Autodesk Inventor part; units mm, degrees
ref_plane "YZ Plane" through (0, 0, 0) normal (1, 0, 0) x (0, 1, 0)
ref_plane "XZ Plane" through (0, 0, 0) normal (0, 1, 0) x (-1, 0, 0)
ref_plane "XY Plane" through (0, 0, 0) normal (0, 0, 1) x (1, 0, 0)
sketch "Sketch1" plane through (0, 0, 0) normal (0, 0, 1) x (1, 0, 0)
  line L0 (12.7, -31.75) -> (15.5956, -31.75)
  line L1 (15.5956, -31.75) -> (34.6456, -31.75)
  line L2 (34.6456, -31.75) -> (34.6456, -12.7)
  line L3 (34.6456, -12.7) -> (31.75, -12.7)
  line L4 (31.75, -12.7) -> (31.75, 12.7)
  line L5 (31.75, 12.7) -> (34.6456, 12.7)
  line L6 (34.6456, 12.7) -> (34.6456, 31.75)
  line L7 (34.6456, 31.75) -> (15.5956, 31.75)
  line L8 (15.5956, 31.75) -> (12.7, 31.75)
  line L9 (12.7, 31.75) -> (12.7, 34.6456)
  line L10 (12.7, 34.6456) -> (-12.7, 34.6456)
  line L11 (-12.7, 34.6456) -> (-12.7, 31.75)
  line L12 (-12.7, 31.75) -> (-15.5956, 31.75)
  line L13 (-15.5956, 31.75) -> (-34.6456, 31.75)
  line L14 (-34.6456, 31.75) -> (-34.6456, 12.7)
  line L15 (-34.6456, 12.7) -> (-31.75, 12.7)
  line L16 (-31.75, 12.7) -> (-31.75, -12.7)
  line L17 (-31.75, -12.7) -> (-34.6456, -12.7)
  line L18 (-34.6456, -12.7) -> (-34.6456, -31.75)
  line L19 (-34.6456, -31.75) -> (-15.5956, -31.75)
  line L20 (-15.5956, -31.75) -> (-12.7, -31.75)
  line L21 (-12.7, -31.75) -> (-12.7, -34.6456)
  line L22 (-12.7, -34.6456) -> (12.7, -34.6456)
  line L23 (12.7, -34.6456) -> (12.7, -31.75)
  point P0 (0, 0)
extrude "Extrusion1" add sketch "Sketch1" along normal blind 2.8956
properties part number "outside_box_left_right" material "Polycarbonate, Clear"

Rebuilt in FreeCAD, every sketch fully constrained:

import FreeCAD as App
import Part
import Sketcher
from FreeCAD import Vector
Q = App.Units.Quantity


def add_polygon(sketch, points):
    """Adds a closed chain of lines whose ends are joined by coincident constraints."""
    first, n = sketch.GeometryCount, len(points)
    for a, b in zip(points, points[1:] + points[:1]):
        sketch.addGeometry(Part.LineSegment(App.Vector(*a, 0), App.Vector(*b, 0)), False)
    for i in range(n):
        sketch.addConstraint(Sketcher.Constraint("Coincident", first + i, 2, first + (i + 1) % n, 1))

doc = App.newDocument("Part")
body = doc.addObject("PartDesign::Body", "Body")

sketch1 = body.newObject("Sketcher::SketchObject", "Sketch")
sketch1.AttachmentSupport = (doc.getObject("XY_Plane"), [""])
sketch1.MapMode = "FlatFace"
add_polygon(sketch1, [(12.7, -34.6), (12.7, -31.8), (34.6, -31.8), (34.6, -12.7), (31.8, -12.7), (31.8, 12.7), (34.6, 12.7), (34.6, 31.8), (12.7, 31.8), (12.7, 34.6), (-12.7, 34.6), (-12.7, 31.8), (-34.6, 31.8), (-34.6, 12.7), (-31.8, 12.7), (-31.8, -12.7), (-34.6, -12.7), (-34.6, -31.8), (-12.7, -31.8), (-12.7, -34.6)])
sketch1.addConstraint([
    Sketcher.Constraint("Vertical", 0),
    Sketcher.Constraint("Horizontal", 1),
    Sketcher.Constraint("Vertical", 2),
    Sketcher.Constraint("Horizontal", 3),
    Sketcher.Constraint("Vertical", 4),
    Sketcher.Constraint("Horizontal", 5),
    Sketcher.Constraint("Vertical", 6),
    Sketcher.Constraint("Horizontal", 7),
    Sketcher.Constraint("Vertical", 8),
    Sketcher.Constraint("Horizontal", 9),
    Sketcher.Constraint("Vertical", 10),
    Sketcher.Constraint("Horizontal", 11),
    Sketcher.Constraint("Vertical", 12),
    Sketcher.Constraint("Horizontal", 13),
    Sketcher.Constraint("Vertical", 14),
    Sketcher.Constraint("Horizontal", 15),
    Sketcher.Constraint("Vertical", 16),
    Sketcher.Constraint("Horizontal", 17),
    Sketcher.Constraint("Vertical", 18),
    Sketcher.Constraint("Horizontal", 19),
    Sketcher.Constraint("Symmetric", 0, 2, 10, 2, -1, 1),
    Sketcher.Constraint("Symmetric", 2, 2, 12, 2, -1, 1),
    Sketcher.Constraint("Symmetric", 4, 2, 14, 2, -1, 1),
    Sketcher.Constraint("Symmetric", 6, 2, 16, 2, -1, 1),
    Sketcher.Constraint("Symmetric", 8, 2, 18, 2, -1, 1),
    Sketcher.Constraint("Symmetric", 7, 2, 10, 2, -2),
    Sketcher.Constraint("Symmetric", 5, 2, 12, 2, -2),
    Sketcher.Constraint("Equal", 15, 0),
    Sketcher.Constraint("Equal", 19, 4),
    Sketcher.Constraint("DistanceX", 9, 2, 9, 1, Q("1 in")),
    Sketcher.Constraint("DistanceY", 2, 1, 2, 2, Q("0.75 in")),
    Sketcher.Constraint("DistanceX", 1, 1, 1, 2, Q("0.864 in")),
    Sketcher.Constraint("DistanceX", 3, 2, 3, 1, Q("0.114 in")),
])
pad1 = body.newObject("PartDesign::Pad", "Pad")
pad1.Profile = sketch1
pad1.Length = Q("0.114 in")

doc.recompute()
